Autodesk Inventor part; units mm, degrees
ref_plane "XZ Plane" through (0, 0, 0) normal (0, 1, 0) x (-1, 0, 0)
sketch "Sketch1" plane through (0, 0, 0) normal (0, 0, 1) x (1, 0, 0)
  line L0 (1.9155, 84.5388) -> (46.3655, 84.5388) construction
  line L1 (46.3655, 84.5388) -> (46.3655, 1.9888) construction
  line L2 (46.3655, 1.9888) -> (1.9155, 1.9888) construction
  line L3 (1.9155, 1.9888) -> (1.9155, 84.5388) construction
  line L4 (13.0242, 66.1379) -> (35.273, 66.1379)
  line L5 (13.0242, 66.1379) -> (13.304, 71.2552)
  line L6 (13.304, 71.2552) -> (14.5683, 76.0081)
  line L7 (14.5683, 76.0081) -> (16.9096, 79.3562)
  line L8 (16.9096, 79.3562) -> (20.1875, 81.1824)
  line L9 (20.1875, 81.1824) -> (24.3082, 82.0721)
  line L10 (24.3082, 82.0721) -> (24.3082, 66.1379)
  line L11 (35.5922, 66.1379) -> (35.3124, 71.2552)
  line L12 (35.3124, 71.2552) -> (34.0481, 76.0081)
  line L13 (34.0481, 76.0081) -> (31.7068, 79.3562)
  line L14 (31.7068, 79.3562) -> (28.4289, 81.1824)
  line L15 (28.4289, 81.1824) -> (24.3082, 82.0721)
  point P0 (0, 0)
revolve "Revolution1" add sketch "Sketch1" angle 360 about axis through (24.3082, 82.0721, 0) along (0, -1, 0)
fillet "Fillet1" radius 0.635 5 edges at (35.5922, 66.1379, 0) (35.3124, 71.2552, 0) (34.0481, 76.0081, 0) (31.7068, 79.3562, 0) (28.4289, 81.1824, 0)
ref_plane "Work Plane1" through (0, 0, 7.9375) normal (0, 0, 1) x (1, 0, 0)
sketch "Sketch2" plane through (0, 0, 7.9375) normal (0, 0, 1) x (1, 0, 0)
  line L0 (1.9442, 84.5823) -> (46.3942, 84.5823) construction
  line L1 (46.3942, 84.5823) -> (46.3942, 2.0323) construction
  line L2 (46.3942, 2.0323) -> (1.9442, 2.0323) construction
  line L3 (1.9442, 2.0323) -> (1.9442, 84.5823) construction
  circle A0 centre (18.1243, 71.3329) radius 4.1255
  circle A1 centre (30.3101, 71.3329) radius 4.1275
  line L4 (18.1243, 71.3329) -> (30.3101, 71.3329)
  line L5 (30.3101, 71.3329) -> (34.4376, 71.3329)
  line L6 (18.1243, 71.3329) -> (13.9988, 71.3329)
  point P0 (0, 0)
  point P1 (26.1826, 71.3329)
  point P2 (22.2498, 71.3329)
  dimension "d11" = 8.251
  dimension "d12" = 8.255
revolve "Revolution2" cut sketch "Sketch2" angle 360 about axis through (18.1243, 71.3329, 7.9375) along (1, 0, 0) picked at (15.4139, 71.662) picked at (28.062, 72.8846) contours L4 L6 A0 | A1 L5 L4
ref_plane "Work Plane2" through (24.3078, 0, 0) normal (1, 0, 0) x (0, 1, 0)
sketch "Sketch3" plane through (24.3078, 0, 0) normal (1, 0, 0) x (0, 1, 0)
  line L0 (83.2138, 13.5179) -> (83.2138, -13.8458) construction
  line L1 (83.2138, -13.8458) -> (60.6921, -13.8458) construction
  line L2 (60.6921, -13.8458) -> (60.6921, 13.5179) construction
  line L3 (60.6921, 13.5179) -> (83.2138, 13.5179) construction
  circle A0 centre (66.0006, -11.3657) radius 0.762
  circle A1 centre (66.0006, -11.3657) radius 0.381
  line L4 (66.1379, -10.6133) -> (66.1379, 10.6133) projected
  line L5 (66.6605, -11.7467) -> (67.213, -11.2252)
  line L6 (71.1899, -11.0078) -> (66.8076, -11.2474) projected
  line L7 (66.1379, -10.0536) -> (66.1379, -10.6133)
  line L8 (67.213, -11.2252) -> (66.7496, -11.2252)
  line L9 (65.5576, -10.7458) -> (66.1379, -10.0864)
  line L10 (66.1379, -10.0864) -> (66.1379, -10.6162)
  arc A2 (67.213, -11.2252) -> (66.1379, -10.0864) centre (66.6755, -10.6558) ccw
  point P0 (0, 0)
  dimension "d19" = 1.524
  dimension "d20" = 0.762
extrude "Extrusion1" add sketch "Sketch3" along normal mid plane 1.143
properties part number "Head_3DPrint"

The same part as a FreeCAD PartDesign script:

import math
import FreeCAD as App
import Part
import Sketcher

V = App.Vector
Q = App.Units.Quantity


def edges_at(feature, points):
    """Names of the edges that pass closest to the given points."""
    edges = feature.Shape.Edges
    near = lambda p: min(range(len(edges)), key=lambda i: edges[i].distToShape(Part.Vertex(*p))[0])
    return sorted({f"Edge{near(p) + 1}" for p in points})

doc = App.newDocument("Part")
body = doc.addObject("PartDesign::Body", "Body")

sketch1 = body.newObject("Sketcher::SketchObject", "Sketch")
sketch1.AttachmentSupport = (doc.getObject("XY_Plane"), [""])
sketch1.MapMode = "FlatFace"
sketch1.addGeometry(Part.LineSegment(V(13.3, 71.3, 0), V(13, 66.1, 0)), False)
sketch1.addGeometry(Part.LineSegment(V(13, 66.1, 0), V(24.3, 66.1, 0)), False)
sketch1.addGeometry(Part.LineSegment(V(24.3, 66.1, 0), V(24.3, 82.1, 0)), False)
sketch1.addGeometry(Part.LineSegment(V(24.3, 82.1, 0), V(20.2, 81.2, 0)), False)
sketch1.addGeometry(Part.LineSegment(V(20.2, 81.2, 0), V(16.9, 79.4, 0)), False)
sketch1.addGeometry(Part.LineSegment(V(16.9, 79.4, 0), V(14.6, 76, 0)), False)
sketch1.addGeometry(Part.LineSegment(V(14.6, 76, 0), V(13.3, 71.3, 0)), False)
sketch1.addGeometry(Part.LineSegment(V(24.3, 82.1, 0), V(24.3, 66.1, 0)), True)
sketch1.addConstraint(Sketcher.Constraint("Coincident", 0, 2, 1, 1))
sketch1.addConstraint(Sketcher.Constraint("Coincident", 1, 2, 2, 1))
sketch1.addConstraint(Sketcher.Constraint("Coincident", 2, 2, 3, 1))
sketch1.addConstraint(Sketcher.Constraint("Coincident", 3, 2, 4, 1))
sketch1.addConstraint(Sketcher.Constraint("Coincident", 4, 2, 5, 1))
sketch1.addConstraint(Sketcher.Constraint("Coincident", 5, 2, 6, 1))
sketch1.addConstraint(Sketcher.Constraint("Coincident", 6, 2, 0, 1))
sketch1.addConstraint(Sketcher.Constraint("Horizontal", 1))
sketch1.addConstraint(Sketcher.Constraint("Vertical", 2))
sketch1.addConstraint(Sketcher.Constraint("Vertical", 7))
sketch1.addConstraint(Sketcher.Constraint("Coincident", 7, 1, 2, 2))
sketch1.addConstraint(Sketcher.Constraint("Horizontal", 0, 2, 7, 2))
sketch1.addConstraint(Sketcher.Constraint("Angle", 0, Q("-93.1297 deg")))
sketch1.addConstraint(Sketcher.Constraint("DistanceX", 6, 2, 3, 2, Q("0.271 in")))
sketch1.addConstraint(Sketcher.Constraint("DistanceX", 1, 1, 1, 2, Q("11.284 mm")))
sketch1.addConstraint(Sketcher.Constraint("DistanceY", 2, 1, 2, 2, Q("15.9342 mm")))
sketch1.addConstraint(Sketcher.Constraint("DistanceY", 1, 2, 3, 2, Q("0.5923 in")))
sketch1.addConstraint(Sketcher.Constraint("DistanceY", 4, 2, 3, 2, Q("0.0719 in")))
sketch1.addConstraint(Sketcher.Constraint("DistanceX", 0, 2, 5, 2, Q("0.0608 in")))
sketch1.addConstraint(Sketcher.Constraint("DistanceY", 0, 2, 5, 2, Q("0.3886 in")))
sketch1.addConstraint(Sketcher.Constraint("Distance", 0, Q("5.125 mm")))
sketch1.addConstraint(Sketcher.Constraint("Distance", 4, Q("3.7523 mm")))
sketch1.addConstraint(Sketcher.Constraint("DistanceX", -1, 1, 0, 2, Q("13.0242 mm")))
sketch1.addConstraint(Sketcher.Constraint("DistanceY", -1, 1, 0, 2, Q("66.138 mm")))
revolution = body.newObject("PartDesign::Revolution", "Revolution")
revolution.Profile = sketch1
revolution.ReferenceAxis = (sketch1, ["Axis0"])
revolution.Angle = 360
doc.recompute()

fillet = body.newObject("PartDesign::Fillet", "Fillet")
fillet.Base = (revolution, edges_at(revolution, [
    (35.592, 66.138, 0),
    (35.312, 71.255, 0),
    (34.048, 76.008, 0),
    (31.707, 79.356, 0),
    (28.429, 81.182, 0),
]))
fillet.Radius = Q("0.025 in")

sketch2 = body.newObject("Sketcher::SketchObject", "Sketch001")
sketch2.AttachmentSupport = (doc.getObject("XY_Plane"), [""])
sketch2.MapMode = "FlatFace"
sketch2.AttachmentOffset = App.Placement(V(0, 0, 0.3125 * 25.4), App.Rotation())
sketch2.addGeometry(Part.LineSegment(V(14, 71.3, 0), V(22.2, 71.3, 0)), False)
sketch2.addGeometry(Part.ArcOfCircle(Part.Circle(V(18.1, 71.3, 0), V(0, 0, 1), 4.1), math.radians(0), math.radians(180)), False)
sketch2.addGeometry(Part.ArcOfCircle(Part.Circle(V(30.3, 71.3, 0), V(0, 0, 1), 4.1), math.radians(0), math.radians(180)), False)
sketch2.addGeometry(Part.LineSegment(V(26.2, 71.3, 0), V(34.4, 71.3, 0)), False)
sketch2.addGeometry(Part.LineSegment(V(14, 71.3, 0), V(34.4, 71.3, 0)), True)
sketch2.addConstraint(Sketcher.Constraint("Coincident", 0, 1, 1, 2))
sketch2.addConstraint(Sketcher.Constraint("Coincident", 1, 1, 0, 2))
sketch2.addConstraint(Sketcher.Constraint("Coincident", 2, 1, 3, 2))
sketch2.addConstraint(Sketcher.Constraint("Coincident", 3, 1, 2, 2))
sketch2.addConstraint(Sketcher.Constraint("Horizontal", 0))
sketch2.addConstraint(Sketcher.Constraint("Horizontal", 3))
sketch2.addConstraint(Sketcher.Constraint("Horizontal", 4))
sketch2.addConstraint(Sketcher.Constraint("Coincident", 4, 1, 0, 1))
sketch2.addConstraint(Sketcher.Constraint("Coincident", 4, 2, 2, 1))
sketch2.addConstraint(Sketcher.Constraint("Horizontal", 1, 3, 2, 3))
sketch2.addConstraint(Sketcher.Constraint("Horizontal", 2, 3, 0, 1))
sketch2.addConstraint(Sketcher.Constraint("Radius", 2, Q("0.1625 in")))
sketch2.addConstraint(Sketcher.Constraint("Radius", 1, Q("4.1255 mm")))
sketch2.addConstraint(Sketcher.Constraint("DistanceX", 4, 1, 4, 2, Q("20.4388 mm")))
sketch2.addConstraint(Sketcher.Constraint("DistanceX", -1, 1, 2, 3, Q("1.1933 in")))
sketch2.addConstraint(Sketcher.Constraint("DistanceY", -1, 1, 1, 3, Q("71.333 mm")))
groove = body.newObject("PartDesign::Groove", "Groove")
groove.Profile = sketch2
groove.ReferenceAxis = (sketch2, ["Axis0"])
groove.Angle = 360

sketch3 = body.newObject("Sketcher::SketchObject", "Sketch002")
sketch3.AttachmentSupport = (doc.getObject("YZ_Plane"), [""])
sketch3.MapMode = "FlatFace"
sketch3.AttachmentOffset = App.Placement(V(0, 0, 0.957 * 25.4), App.Rotation())
sketch3.addGeometry(Part.ArcOfCircle(Part.Circle(V(66.0006, -11.3657, 0), V(0, 0, 1), 0.762), math.radians(125.55079), math.radians(329.999573)), False)
sketch3.addGeometry(Part.LineSegment(V(66.6605, -11.7467, 0), V(67.213, -11.2252, 0)), False)
sketch3.addGeometry(Part.ArcOfCircle(Part.Circle(V(66.6755, -10.6558, 0), V(0, 0, 1), 0.783021), math.radians(-46.650763), math.radians(133.354557)), False)
sketch3.addGeometry(Part.LineSegment(V(66.1379, -10.0864, 0), V(65.5576, -10.7458, 0)), False)
sketch3.addGeometry(Part.Circle(V(66.0006, -11.3657, 0), V(0, 0, 1), 0.381), False)
sketch3.addConstraint(Sketcher.Constraint("Coincident", 0, 2, 1, 1))
sketch3.addConstraint(Sketcher.Constraint("Coincident", 1, 2, 2, 1))
sketch3.addConstraint(Sketcher.Constraint("Coincident", 2, 2, 3, 1))
sketch3.addConstraint(Sketcher.Constraint("Coincident", 3, 2, 0, 1))
sketch3.addConstraint(Sketcher.Constraint("Coincident", 4, 3, 0, 3))
sketch3.addConstraint(Sketcher.Constraint("Diameter", 4, Q("0.03 in")))
sketch3.addConstraint(Sketcher.Constraint("Radius", 0, Q("0.03 in")))
sketch3.addConstraint(Sketcher.Constraint("Radius", 2, Q("0.783 mm")))
sketch3.addConstraint(Sketcher.Constraint("DistanceX", -1, 1, 3, 2, Q("2.581 in")))
sketch3.addConstraint(Sketcher.Constraint("DistanceY", 0, 2, 0, 3, Q("0.015 in")))
sketch3.addConstraint(Sketcher.Constraint("DistanceX", 3, 2, 2, 3, Q("0.044 in")))
sketch3.addConstraint(Sketcher.Constraint("Distance", 1, Q("0.0299 in")))
sketch3.addConstraint(Sketcher.Constraint("DistanceY", 2, 2, -1, 1, Q("0.3971 in")))
sketch3.addConstraint(Sketcher.Constraint("DistanceX", 0, 2, 2, 3, Q("0.0006 in")))
sketch3.addConstraint(Sketcher.Constraint("DistanceX", 0, 3, 2, 2, Q("0.0054 in")))
sketch3.addConstraint(Sketcher.Constraint("Distance", 3, Q("0.8784 mm")))
pad1 = body.newObject("PartDesign::Pad", "Pad")
pad1.Profile = sketch3
pad1.Length = Q("0.045 in")
pad1.Midplane = True

doc.recompute()
